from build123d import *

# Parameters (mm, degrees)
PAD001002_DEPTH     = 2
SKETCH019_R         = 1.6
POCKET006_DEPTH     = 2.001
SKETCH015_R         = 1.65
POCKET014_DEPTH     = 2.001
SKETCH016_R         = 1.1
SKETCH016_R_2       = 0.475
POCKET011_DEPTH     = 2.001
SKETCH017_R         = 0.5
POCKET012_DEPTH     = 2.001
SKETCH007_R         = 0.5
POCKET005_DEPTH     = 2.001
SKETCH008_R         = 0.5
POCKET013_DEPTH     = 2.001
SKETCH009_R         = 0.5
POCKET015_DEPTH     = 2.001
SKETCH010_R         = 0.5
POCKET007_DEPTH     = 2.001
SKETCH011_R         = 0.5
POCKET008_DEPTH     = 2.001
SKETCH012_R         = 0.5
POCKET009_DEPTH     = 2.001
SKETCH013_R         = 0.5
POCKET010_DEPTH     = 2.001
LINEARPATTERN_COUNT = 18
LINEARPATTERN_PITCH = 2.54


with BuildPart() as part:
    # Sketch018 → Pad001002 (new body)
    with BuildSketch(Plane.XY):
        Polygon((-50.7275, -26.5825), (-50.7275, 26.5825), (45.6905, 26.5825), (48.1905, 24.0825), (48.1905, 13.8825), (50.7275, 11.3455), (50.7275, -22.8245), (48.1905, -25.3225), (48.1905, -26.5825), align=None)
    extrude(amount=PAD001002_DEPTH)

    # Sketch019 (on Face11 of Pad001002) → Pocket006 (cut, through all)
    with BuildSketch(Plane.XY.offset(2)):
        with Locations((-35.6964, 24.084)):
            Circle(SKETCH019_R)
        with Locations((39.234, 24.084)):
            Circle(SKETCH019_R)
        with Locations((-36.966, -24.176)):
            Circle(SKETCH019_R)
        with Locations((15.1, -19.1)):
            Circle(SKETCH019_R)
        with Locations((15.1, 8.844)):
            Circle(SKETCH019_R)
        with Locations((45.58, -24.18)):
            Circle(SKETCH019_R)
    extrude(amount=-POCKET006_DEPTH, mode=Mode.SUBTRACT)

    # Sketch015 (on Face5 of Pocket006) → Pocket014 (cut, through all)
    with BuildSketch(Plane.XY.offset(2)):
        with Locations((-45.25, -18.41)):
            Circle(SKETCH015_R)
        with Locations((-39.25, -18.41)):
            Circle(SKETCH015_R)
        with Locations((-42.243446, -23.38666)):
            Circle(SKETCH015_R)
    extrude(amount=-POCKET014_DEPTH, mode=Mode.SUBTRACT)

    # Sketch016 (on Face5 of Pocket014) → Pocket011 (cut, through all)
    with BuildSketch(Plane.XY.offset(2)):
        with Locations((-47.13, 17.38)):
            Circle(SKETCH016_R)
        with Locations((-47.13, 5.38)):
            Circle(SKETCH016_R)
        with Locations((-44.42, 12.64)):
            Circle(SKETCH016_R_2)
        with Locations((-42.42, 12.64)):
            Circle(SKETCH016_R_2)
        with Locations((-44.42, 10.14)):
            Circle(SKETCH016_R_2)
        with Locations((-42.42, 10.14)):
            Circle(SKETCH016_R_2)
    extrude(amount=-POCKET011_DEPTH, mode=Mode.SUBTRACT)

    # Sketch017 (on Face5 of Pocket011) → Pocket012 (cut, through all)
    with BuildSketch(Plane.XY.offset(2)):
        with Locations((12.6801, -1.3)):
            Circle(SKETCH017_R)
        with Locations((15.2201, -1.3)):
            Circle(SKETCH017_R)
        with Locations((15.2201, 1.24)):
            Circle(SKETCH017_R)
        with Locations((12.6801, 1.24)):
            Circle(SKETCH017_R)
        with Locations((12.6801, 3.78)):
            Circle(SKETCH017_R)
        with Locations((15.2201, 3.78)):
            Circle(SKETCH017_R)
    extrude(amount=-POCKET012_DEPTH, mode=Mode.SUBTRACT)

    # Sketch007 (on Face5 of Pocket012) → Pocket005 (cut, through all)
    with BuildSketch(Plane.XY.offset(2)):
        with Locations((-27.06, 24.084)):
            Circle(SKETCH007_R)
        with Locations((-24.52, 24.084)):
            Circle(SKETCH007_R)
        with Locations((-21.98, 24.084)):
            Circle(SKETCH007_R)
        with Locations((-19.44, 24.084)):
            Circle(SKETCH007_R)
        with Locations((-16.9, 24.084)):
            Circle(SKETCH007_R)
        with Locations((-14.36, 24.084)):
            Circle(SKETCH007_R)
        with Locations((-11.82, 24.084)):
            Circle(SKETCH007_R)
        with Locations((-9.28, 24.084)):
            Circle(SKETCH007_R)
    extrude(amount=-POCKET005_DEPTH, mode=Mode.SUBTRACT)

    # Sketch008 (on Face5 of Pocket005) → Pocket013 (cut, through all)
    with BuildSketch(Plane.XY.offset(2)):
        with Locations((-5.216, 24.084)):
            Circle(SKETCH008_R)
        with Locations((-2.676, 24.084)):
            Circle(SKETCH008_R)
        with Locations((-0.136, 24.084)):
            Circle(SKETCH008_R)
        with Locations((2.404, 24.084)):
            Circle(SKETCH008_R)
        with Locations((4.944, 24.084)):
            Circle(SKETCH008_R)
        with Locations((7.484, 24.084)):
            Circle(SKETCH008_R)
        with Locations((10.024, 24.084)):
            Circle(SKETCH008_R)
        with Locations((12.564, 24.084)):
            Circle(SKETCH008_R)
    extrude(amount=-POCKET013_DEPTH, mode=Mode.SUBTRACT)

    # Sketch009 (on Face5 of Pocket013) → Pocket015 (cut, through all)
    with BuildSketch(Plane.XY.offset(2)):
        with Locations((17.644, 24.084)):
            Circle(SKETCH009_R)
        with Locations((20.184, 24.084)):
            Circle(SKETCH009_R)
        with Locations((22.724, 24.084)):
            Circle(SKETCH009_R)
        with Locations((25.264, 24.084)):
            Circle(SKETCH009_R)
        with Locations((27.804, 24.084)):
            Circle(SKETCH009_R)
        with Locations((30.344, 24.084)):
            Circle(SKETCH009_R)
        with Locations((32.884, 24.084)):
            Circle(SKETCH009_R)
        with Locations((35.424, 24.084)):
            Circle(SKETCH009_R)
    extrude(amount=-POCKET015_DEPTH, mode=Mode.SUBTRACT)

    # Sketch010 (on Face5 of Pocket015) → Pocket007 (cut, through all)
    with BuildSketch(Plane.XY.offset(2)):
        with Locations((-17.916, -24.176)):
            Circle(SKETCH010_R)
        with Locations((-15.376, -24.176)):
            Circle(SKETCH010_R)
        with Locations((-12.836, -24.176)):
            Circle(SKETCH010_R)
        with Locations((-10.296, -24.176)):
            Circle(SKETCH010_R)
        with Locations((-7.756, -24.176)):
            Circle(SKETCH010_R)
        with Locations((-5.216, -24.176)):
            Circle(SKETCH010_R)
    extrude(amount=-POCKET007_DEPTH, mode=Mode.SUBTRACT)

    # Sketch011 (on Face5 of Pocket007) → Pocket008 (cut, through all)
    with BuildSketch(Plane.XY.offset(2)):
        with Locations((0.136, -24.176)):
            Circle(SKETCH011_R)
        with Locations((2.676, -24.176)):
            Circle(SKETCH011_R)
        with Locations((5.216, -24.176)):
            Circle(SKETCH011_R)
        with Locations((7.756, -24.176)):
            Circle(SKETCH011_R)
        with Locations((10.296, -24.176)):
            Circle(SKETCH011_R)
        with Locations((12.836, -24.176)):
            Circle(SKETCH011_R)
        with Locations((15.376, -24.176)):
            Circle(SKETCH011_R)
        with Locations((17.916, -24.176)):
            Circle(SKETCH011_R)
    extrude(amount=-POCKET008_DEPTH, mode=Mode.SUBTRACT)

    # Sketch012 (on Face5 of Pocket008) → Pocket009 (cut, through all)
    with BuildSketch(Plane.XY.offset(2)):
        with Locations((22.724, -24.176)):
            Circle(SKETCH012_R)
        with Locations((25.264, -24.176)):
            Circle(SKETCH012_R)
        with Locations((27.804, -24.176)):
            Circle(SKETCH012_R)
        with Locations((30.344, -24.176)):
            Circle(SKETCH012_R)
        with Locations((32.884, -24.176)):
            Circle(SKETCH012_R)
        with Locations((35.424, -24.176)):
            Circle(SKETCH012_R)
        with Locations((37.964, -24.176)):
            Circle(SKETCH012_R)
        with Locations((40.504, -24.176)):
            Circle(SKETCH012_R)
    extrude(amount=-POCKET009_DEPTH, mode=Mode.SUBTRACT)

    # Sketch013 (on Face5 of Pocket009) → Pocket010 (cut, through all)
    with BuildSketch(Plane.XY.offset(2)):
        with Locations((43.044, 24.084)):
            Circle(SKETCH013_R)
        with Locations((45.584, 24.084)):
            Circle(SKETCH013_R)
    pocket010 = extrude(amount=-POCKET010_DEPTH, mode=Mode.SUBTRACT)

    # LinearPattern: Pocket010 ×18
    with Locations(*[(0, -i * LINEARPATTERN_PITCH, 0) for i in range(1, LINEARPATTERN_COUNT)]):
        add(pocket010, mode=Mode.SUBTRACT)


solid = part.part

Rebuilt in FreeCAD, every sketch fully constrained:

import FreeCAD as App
import Part
import Sketcher

V = App.Vector
Q = App.Units.Quantity

doc = App.newDocument("Part")
params = doc.addObject("Spreadsheet::Sheet", "Params")
for row, (alias, value) in enumerate([
    ("sketch1_height", "10.2 mm"),
    ("sketch1_height2", "1.26 mm"),
    ("sketch1_height3", "34.17 mm"),
    ("pad1_length", "2 mm"),
    ("sketch2_diameter", "3.2 mm"),
    ("sketch3_diameter", "3.3 mm"),
    ("sketch4_diameter", "2.2 mm"),
    ("sketch4_diameter2", "0.95 mm"),
    ("sketch5_diameter", "1 mm"),
    ("sketch6_diameter", "1 mm"),
    ("sketch7_diameter", "1 mm"),
    ("sketch8_diameter", "1 mm"),
    ("sketch9_diameter", "1 mm"),
    ("sketch10_diameter", "1 mm"),
    ("sketch11_diameter", "1 mm"),
    ("sketch12_diameter", "1 mm"),
    ("linearpattern_pitch", "2.54 mm"),
], start=1):
    params.set(f"A{row}", alias)
    params.set(f"B{row}", "=" + value)
    params.setAlias(f"B{row}", alias)

body = doc.addObject("PartDesign::Body", "Body")

# Sketch on XY plane
sketch1 = body.newObject("Sketcher::SketchObject", "Sketch")
sketch1.AttachmentSupport = (doc.getObject("XY_Plane"), [""])
sketch1.MapMode = "FlatFace"
sketch1.addGeometry([
    Part.LineSegment(V(-50.7, 26.6, 0), V(-50.7, -26.6, 0)),  # 0
    Part.LineSegment(V(-50.7, -26.6, 0), V(48.2, -26.6, 0)),  # 1
    Part.LineSegment(V(48.2, -26.6, 0), V(48.2, -25.3, 0)),  # 2
    Part.LineSegment(V(48.2, -25.3, 0), V(50.7, -22.8, 0)),  # 3
    Part.LineSegment(V(50.7, -22.8, 0), V(50.7, 11.3, 0)),  # 4
    Part.LineSegment(V(50.7, 11.3, 0), V(48.2, 13.9, 0)),  # 5
    Part.LineSegment(V(48.2, 13.9, 0), V(48.2, 24.1, 0)),  # 6
    Part.LineSegment(V(48.2, 24.1, 0), V(45.7, 26.6, 0)),  # 7
    Part.LineSegment(V(45.7, 26.6, 0), V(-50.7, 26.6, 0)),  # 8
], False)
sketch1.addConstraint([
    Sketcher.Constraint("Coincident", 0, 2, 1, 1),
    Sketcher.Constraint("Coincident", 1, 2, 2, 1),
    Sketcher.Constraint("Coincident", 2, 2, 3, 1),
    Sketcher.Constraint("Coincident", 3, 2, 4, 1),
    Sketcher.Constraint("Coincident", 4, 2, 5, 1),
    Sketcher.Constraint("Coincident", 5, 2, 6, 1),
    Sketcher.Constraint("Coincident", 6, 2, 7, 1),
    Sketcher.Constraint("Coincident", 7, 2, 8, 1),
    Sketcher.Constraint("Coincident", 8, 2, 0, 1),
    Sketcher.Constraint("Vertical", 0),
    Sketcher.Constraint("Horizontal", 1),
    Sketcher.Constraint("Vertical", 2),
    Sketcher.Constraint("Vertical", 4),
    Sketcher.Constraint("Vertical", 6),
    Sketcher.Constraint("Horizontal", 8),
    Sketcher.Constraint("Parallel", 5, 7),
    Sketcher.Constraint("Vertical", 2, 2, 5, 2),
    Sketcher.Constraint("Angle", 5, Q("135 deg")),
    Sketcher.Constraint("DistanceY", 6, 1, 6, 2, Q("10.2 mm")),
    Sketcher.Constraint("DistanceY", 2, 1, 2, 2, Q("1.26 mm")),
    Sketcher.Constraint("DistanceY", 4, 1, 4, 2, Q("34.17 mm")),
    Sketcher.Constraint("DistanceX", 7, 2, 6, 2, Q("2.5 mm")),
    Sketcher.Constraint("DistanceX", 1, 1, 1, 2, Q("98.918 mm")),
    Sketcher.Constraint("DistanceY", 0, 2, 0, 1, Q("53.165 mm")),
    Sketcher.Constraint("DistanceX", 2, 2, 3, 2, Q("2.537 mm")),
    Sketcher.Constraint("DistanceX", 0, 2, -1, 1, Q("50.7275 mm")),
    Sketcher.Constraint("DistanceY", 0, 2, -1, 1, Q("26.5825 mm")),
])
sketch1.setExpression("Constraints[18]", "Params.sketch1_height")
sketch1.setExpression("Constraints[19]", "Params.sketch1_height2")
sketch1.setExpression("Constraints[20]", "Params.sketch1_height3")
pad1 = body.newObject("PartDesign::Pad", "Pad")
pad1.Profile = sketch1
pad1.setExpression("Length", "Params.pad1_length")

# Sketch on XY plane
sketch2 = body.newObject("Sketcher::SketchObject", "Sketch001")
sketch2.AttachmentSupport = (doc.getObject("XY_Plane"), [""])
sketch2.MapMode = "FlatFace"
sketch2.AttachmentOffset = App.Placement(V(0, 0, 2), App.Rotation())
sketch2.addGeometry([
    Part.Circle(V(-35.7, 24.1, 0), V(0, 0, 1), 1.6),  # 0
    Part.Circle(V(39.2, 24.1, 0), V(0, 0, 1), 1.6),  # 1
    Part.Circle(V(-37, -24.2, 0), V(0, 0, 1), 1.6),  # 2
    Part.Circle(V(15.1, -19.1, 0), V(0, 0, 1), 1.6),  # 3
    Part.Circle(V(15.1, 8.8, 0), V(0, 0, 1), 1.6),  # 4
    Part.Circle(V(45.6, -24.2, 0), V(0, 0, 1), 1.6),  # 5
], False)
sketch2.addConstraint([
    Sketcher.Constraint("Equal", 0, 1),
    Sketcher.Constraint("Equal", 1, 2),
    Sketcher.Constraint("Equal", 2, 3),
    Sketcher.Constraint("Equal", 3, 4),
    Sketcher.Constraint("Equal", 4, 5),
    Sketcher.Constraint("Horizontal", 0, 3, 1, 3),
    Sketcher.Constraint("Vertical", 3, 3, 4, 3),
    Sketcher.Constraint("Diameter", 0, Q("3.2 mm")),
    Sketcher.Constraint("DistanceX", -1, 1, 3, 3, Q("15.1 mm")),
    Sketcher.Constraint("DistanceY", 3, 3, -1, 1, Q("19.1 mm")),
    Sketcher.Constraint("DistanceX", 2, 3, 1, 3, Q("76.2 mm")),
    Sketcher.Constraint("DistanceX", -1, 1, 5, 3, Q("45.58 mm")),
    Sketcher.Constraint("DistanceY", 5, 3, -1, 1, Q("24.18 mm")),
    Sketcher.Constraint("DistanceY", 2, 3, 0, 3, Q("48.26 mm")),
    Sketcher.Constraint("DistanceY", 4, 3, 1, 3, Q("15.24 mm")),
    Sketcher.Constraint("DistanceY", -1, 1, 0, 3, Q("24.084 mm")),
    Sketcher.Constraint("DistanceX", -1, 1, 1, 3, Q("39.234 mm")),
    Sketcher.Constraint("DistanceX", 0, 3, -1, 1, Q("35.6964 mm")),
])
sketch2.setExpression("Constraints[7]", "Params.sketch2_diameter")
pocket1 = body.newObject("PartDesign::Pocket", "Pocket")
pocket1.Profile = sketch2
pocket1.Type = "ThroughAll"

# Sketch on XY plane
sketch3 = body.newObject("Sketcher::SketchObject", "Sketch002")
sketch3.AttachmentSupport = (doc.getObject("XY_Plane"), [""])
sketch3.MapMode = "FlatFace"
sketch3.AttachmentOffset = App.Placement(V(0, 0, 2), App.Rotation())
sketch3.addGeometry([
    Part.Circle(V(-45.2, -18.4, 0), V(0, 0, 1), 1.6),
    Part.Circle(V(-39.2, -18.4, 0), V(0, 0, 1), 1.6),
    Part.Circle(V(-42.2, -23.4, 0), V(0, 0, 1), 1.6),
], False)
sketch3.addConstraint([
    Sketcher.Constraint("Equal", 0, 1),
    Sketcher.Constraint("Equal", 1, 2),
    Sketcher.Constraint("Horizontal", 0, 3, 1, 3),
    Sketcher.Constraint("Diameter", 0, Q("3.3 mm")),
    Sketcher.Constraint("DistanceX", 0, 3, 1, 3, Q("6 mm")),
    Sketcher.Constraint("DistanceX", 0, 3, -1, 1, Q("45.25 mm")),
    Sketcher.Constraint("DistanceY", 0, 3, -1, 1, Q("18.41 mm")),
    Sketcher.Constraint("DistanceY", 2, 3, -1, 1, Q("23.38666 mm")),
    Sketcher.Constraint("DistanceX", 2, 3, -1, 1, Q("42.243446 mm")),
])
sketch3.setExpression("Constraints[3]", "Params.sketch3_diameter")
pocket2 = body.newObject("PartDesign::Pocket", "Pocket001")
pocket2.Profile = sketch3
pocket2.Type = "ThroughAll"

# Sketch on XY plane
sketch4 = body.newObject("Sketcher::SketchObject", "Sketch003")
sketch4.AttachmentSupport = (doc.getObject("XY_Plane"), [""])
sketch4.MapMode = "FlatFace"
sketch4.AttachmentOffset = App.Placement(V(0, 0, 2), App.Rotation())
sketch4.addGeometry([
    Part.Circle(V(-47.13, 17.38, 0), V(0, 0, 1), 1.1),  # 0
    Part.Circle(V(-47.13, 5.38, 0), V(0, 0, 1), 1.1),  # 1
    Part.Circle(V(-44.42, 12.64, 0), V(0, 0, 1), 0.47),  # 2
    Part.Circle(V(-42.42, 12.64, 0), V(0, 0, 1), 0.47),  # 3
    Part.Circle(V(-44.42, 10.14, 0), V(0, 0, 1), 0.47),  # 4
    Part.Circle(V(-42.42, 10.14, 0), V(0, 0, 1), 0.47),  # 5
], False)
sketch4.addConstraint([
    Sketcher.Constraint("Equal", 0, 1),
    Sketcher.Constraint("Equal", 2, 3),
    Sketcher.Constraint("Equal", 3, 4),
    Sketcher.Constraint("Equal", 4, 5),
    Sketcher.Constraint("Horizontal", 2, 3, 3, 3),
    Sketcher.Constraint("Horizontal", 4, 3, 5, 3),
    Sketcher.Constraint("Vertical", 0, 3, 1, 3),
    Sketcher.Constraint("Vertical", 2, 3, 4, 3),
    Sketcher.Constraint("Vertical", 3, 3, 5, 3),
    Sketcher.Constraint("Diameter", 0, Q("2.2 mm")),
    Sketcher.Constraint("Diameter", 2, Q("0.95 mm")),
    Sketcher.Constraint("DistanceY", 1, 3, 0, 3, Q("12 mm")),
    Sketcher.Constraint("DistanceX", 2, 3, 3, 3, Q("2 mm")),
    Sketcher.Constraint("DistanceY", 4, 3, 2, 3, Q("2.5 mm")),
    Sketcher.Constraint("DistanceX", 0, 3, -1, 1, Q("47.13 mm")),
    Sketcher.Constraint("DistanceY", -1, 1, 0, 3, Q("17.38 mm")),
    Sketcher.Constraint("DistanceX", 2, 3, -1, 1, Q("44.42 mm")),
    Sketcher.Constraint("DistanceY", -1, 1, 2, 3, Q("12.64 mm")),
])
sketch4.setExpression("Constraints[9]", "Params.sketch4_diameter")
sketch4.setExpression("Constraints[10]", "Params.sketch4_diameter2")
pocket3 = body.newObject("PartDesign::Pocket", "Pocket002")
pocket3.Profile = sketch4
pocket3.Type = "ThroughAll"

# Sketch on XY plane
sketch5 = body.newObject("Sketcher::SketchObject", "Sketch004")
sketch5.AttachmentSupport = (doc.getObject("XY_Plane"), [""])
sketch5.MapMode = "FlatFace"
sketch5.AttachmentOffset = App.Placement(V(0, 0, 2), App.Rotation())
sketch5.addGeometry([
    Part.Circle(V(12.7, -1.3, 0), V(0, 0, 1), 0.5),  # 0
    Part.Circle(V(15.2, -1.3, 0), V(0, 0, 1), 0.5),  # 1
    Part.Circle(V(15.2, 1.2, 0), V(0, 0, 1), 0.5),  # 2
    Part.Circle(V(12.7, 1.2, 0), V(0, 0, 1), 0.5),  # 3
    Part.Circle(V(12.7, 3.8, 0), V(0, 0, 1), 0.5),  # 4
    Part.Circle(V(15.2, 3.8, 0), V(0, 0, 1), 0.5),  # 5
], False)
sketch5.addConstraint([
    Sketcher.Constraint("Equal", 0, 1),
    Sketcher.Constraint("Equal", 1, 2),
    Sketcher.Constraint("Equal", 2, 3),
    Sketcher.Constraint("Equal", 3, 4),
    Sketcher.Constraint("Equal", 4, 5),
    Sketcher.Constraint("Horizontal", 0, 3, 1, 3),
    Sketcher.Constraint("Horizontal", 2, 3, 3, 3),
    Sketcher.Constraint("Horizontal", 4, 3, 5, 3),
    Sketcher.Constraint("Vertical", 1, 3, 2, 3),
    Sketcher.Constraint("Vertical", 0, 3, 3, 3),
    Sketcher.Constraint("Vertical", 3, 3, 4, 3),
    Sketcher.Constraint("Vertical", 2, 3, 5, 3),
    Sketcher.Constraint("Diameter", 0, Q("1 mm")),
    Sketcher.Constraint("DistanceY", 0, 3, -1, 1, Q("1.3 mm")),
    Sketcher.Constraint("DistanceY", -1, 1, 2, 3, Q("1.24 mm")),
    Sketcher.Constraint("DistanceY", -1, 1, 4, 3, Q("3.78 mm")),
    Sketcher.Constraint("DistanceX", 0, 3, 1, 3, Q("2.54 mm")),
    Sketcher.Constraint("DistanceX", -1, 1, 0, 3, Q("12.6801 mm")),
])
sketch5.setExpression("Constraints[12]", "Params.sketch5_diameter")
pocket4 = body.newObject("PartDesign::Pocket", "Pocket003")
pocket4.Profile = sketch5
pocket4.Type = "ThroughAll"

# Sketch on XY plane
sketch6 = body.newObject("Sketcher::SketchObject", "Sketch005")
sketch6.AttachmentSupport = (doc.getObject("XY_Plane"), [""])
sketch6.MapMode = "FlatFace"
sketch6.AttachmentOffset = App.Placement(V(0, 0, 2), App.Rotation())
sketch6.addGeometry([
    Part.Circle(V(-27.1, 24.1, 0), V(0, 0, 1), 0.5),  # 0
    Part.Circle(V(-24.5, 24.1, 0), V(0, 0, 1), 0.5),  # 1
    Part.Circle(V(-22, 24.1, 0), V(0, 0, 1), 0.5),  # 2
    Part.Circle(V(-19.4, 24.1, 0), V(0, 0, 1), 0.5),  # 3
    Part.Circle(V(-16.9, 24.1, 0), V(0, 0, 1), 0.5),  # 4
    Part.Circle(V(-14.4, 24.1, 0), V(0, 0, 1), 0.5),  # 5
    Part.Circle(V(-11.8, 24.1, 0), V(0, 0, 1), 0.5),  # 6
    Part.Circle(V(-9.3, 24.1, 0), V(0, 0, 1), 0.5),  # 7
], False)
sketch6.addConstraint([
    Sketcher.Constraint("Equal", 0, 1),
    Sketcher.Constraint("Equal", 1, 2),
    Sketcher.Constraint("Equal", 2, 3),
    Sketcher.Constraint("Equal", 3, 4),
    Sketcher.Constraint("Equal", 4, 5),
    Sketcher.Constraint("Equal", 5, 6),
    Sketcher.Constraint("Equal", 6, 7),
    Sketcher.Constraint("Horizontal", 0, 3, 1, 3),
    Sketcher.Constraint("Horizontal", 1, 3, 2, 3),
    Sketcher.Constraint("Horizontal", 2, 3, 3, 3),
    Sketcher.Constraint("Horizontal", 3, 3, 4, 3),
    Sketcher.Constraint("Horizontal", 4, 3, 5, 3),
    Sketcher.Constraint("Horizontal", 5, 3, 6, 3),
    Sketcher.Constraint("Horizontal", 6, 3, 7, 3),
    Sketcher.Constraint("Diameter", 0, Q("1 mm")),
    Sketcher.Constraint("DistanceX", 4, 3, -1, 1, Q("16.9 mm")),
    Sketcher.Constraint("DistanceX", 0, 3, 5, 3, Q("12.7 mm")),
    Sketcher.Constraint("DistanceX", 1, 3, 6, 3, Q("12.7 mm")),
    Sketcher.Constraint("DistanceX", 2, 3, 7, 3, Q("12.7 mm")),
    Sketcher.Constraint("DistanceX", 0, 3, -1, 1, Q("27.06 mm")),
    Sketcher.Constraint("DistanceX", 1, 3, -1, 1, Q("24.52 mm")),
    Sketcher.Constraint("DistanceX", 2, 3, -1, 1, Q("21.98 mm")),
    Sketcher.Constraint("DistanceX", 3, 3, -1, 1, Q("19.44 mm")),
    Sketcher.Constraint("DistanceY", -1, 1, 0, 3, Q("24.084 mm")),
])
sketch6.setExpression("Constraints[14]", "Params.sketch6_diameter")
pocket5 = body.newObject("PartDesign::Pocket", "Pocket004")
pocket5.Profile = sketch6
pocket5.Type = "ThroughAll"

# Sketch on XY plane
sketch7 = body.newObject("Sketcher::SketchObject", "Sketch006")
sketch7.AttachmentSupport = (doc.getObject("XY_Plane"), [""])
sketch7.MapMode = "FlatFace"
sketch7.AttachmentOffset = App.Placement(V(0, 0, 2), App.Rotation())
sketch7.addGeometry([
    Part.Circle(V(-5.2, 24.1, 0), V(0, 0, 1), 0.5),  # 0
    Part.Circle(V(-2.7, 24.1, 0), V(0, 0, 1), 0.5),  # 1
    Part.Circle(V(-0.1, 24.1, 0), V(0, 0, 1), 0.5),  # 2
    Part.Circle(V(2.4, 24.1, 0), V(0, 0, 1), 0.5),  # 3
    Part.Circle(V(4.9, 24.1, 0), V(0, 0, 1), 0.5),  # 4
    Part.Circle(V(7.5, 24.1, 0), V(0, 0, 1), 0.5),  # 5
    Part.Circle(V(10, 24.1, 0), V(0, 0, 1), 0.5),  # 6
    Part.Circle(V(12.6, 24.1, 0), V(0, 0, 1), 0.5),  # 7
], False)
sketch7.addConstraint([
    Sketcher.Constraint("Equal", 0, 1),
    Sketcher.Constraint("Equal", 1, 2),
    Sketcher.Constraint("Equal", 2, 3),
    Sketcher.Constraint("Equal", 3, 4),
    Sketcher.Constraint("Equal", 4, 5),
    Sketcher.Constraint("Equal", 5, 6),
    Sketcher.Constraint("Equal", 6, 7),
    Sketcher.Constraint("Horizontal", 0, 3, 1, 3),
    Sketcher.Constraint("Horizontal", 1, 3, 2, 3),
    Sketcher.Constraint("Horizontal", 2, 3, 3, 3),
    Sketcher.Constraint("Horizontal", 3, 3, 4, 3),
    Sketcher.Constraint("Horizontal", 4, 3, 5, 3),
    Sketcher.Constraint("Horizontal", 5, 3, 6, 3),
    Sketcher.Constraint("Horizontal", 6, 3, 7, 3),
    Sketcher.Constraint("Diameter", 0, Q("1 mm")),
    Sketcher.Constraint("DistanceX", 0, 3, 5, 3, Q("12.7 mm")),
    Sketcher.Constraint("DistanceX", 1, 3, 6, 3, Q("12.7 mm")),
    Sketcher.Constraint("DistanceX", 2, 3, 7, 3, Q("12.7 mm")),
    Sketcher.Constraint("DistanceX", 0, 3, 1, 3, Q("2.54 mm")),
    Sketcher.Constraint("DistanceX", 1, 3, 2, 3, Q("2.54 mm")),
    Sketcher.Constraint("DistanceX", 2, 3, 3, 3, Q("2.54 mm")),
    Sketcher.Constraint("DistanceX", 3, 3, 4, 3, Q("2.54 mm")),
    Sketcher.Constraint("DistanceX", 0, 3, -1, 1, Q("5.216 mm")),
    Sketcher.Constraint("DistanceY", -1, 1, 0, 3, Q("24.084 mm")),
])
sketch7.setExpression("Constraints[14]", "Params.sketch7_diameter")
pocket6 = body.newObject("PartDesign::Pocket", "Pocket005")
pocket6.Profile = sketch7
pocket6.Type = "ThroughAll"

# Sketch on XY plane
sketch8 = body.newObject("Sketcher::SketchObject", "Sketch007")
sketch8.AttachmentSupport = (doc.getObject("XY_Plane"), [""])
sketch8.MapMode = "FlatFace"
sketch8.AttachmentOffset = App.Placement(V(0, 0, 2), App.Rotation())
sketch8.addGeometry([
    Part.Circle(V(17.6, 24.1, 0), V(0, 0, 1), 0.5),  # 0
    Part.Circle(V(20.2, 24.1, 0), V(0, 0, 1), 0.5),  # 1
    Part.Circle(V(22.7, 24.1, 0), V(0, 0, 1), 0.5),  # 2
    Part.Circle(V(25.3, 24.1, 0), V(0, 0, 1), 0.5),  # 3
    Part.Circle(V(27.8, 24.1, 0), V(0, 0, 1), 0.5),  # 4
    Part.Circle(V(30.3, 24.1, 0), V(0, 0, 1), 0.5),  # 5
    Part.Circle(V(32.9, 24.1, 0), V(0, 0, 1), 0.5),  # 6
    Part.Circle(V(35.4, 24.1, 0), V(0, 0, 1), 0.5),  # 7
], False)
sketch8.addConstraint([
    Sketcher.Constraint("Equal", 0, 1),
    Sketcher.Constraint("Equal", 1, 2),
    Sketcher.Constraint("Equal", 2, 3),
    Sketcher.Constraint("Equal", 3, 4),
    Sketcher.Constraint("Equal", 4, 5),
    Sketcher.Constraint("Equal", 5, 6),
    Sketcher.Constraint("Equal", 6, 7),
    Sketcher.Constraint("Horizontal", 0, 3, 1, 3),
    Sketcher.Constraint("Horizontal", 1, 3, 2, 3),
    Sketcher.Constraint("Horizontal", 2, 3, 3, 3),
    Sketcher.Constraint("Horizontal", 3, 3, 4, 3),
    Sketcher.Constraint("Horizontal", 4, 3, 5, 3),
    Sketcher.Constraint("Horizontal", 5, 3, 6, 3),
    Sketcher.Constraint("Horizontal", 6, 3, 7, 3),
    Sketcher.Constraint("Diameter", 0, Q("1 mm")),
    Sketcher.Constraint("DistanceX", 0, 3, 5, 3, Q("12.7 mm")),
    Sketcher.Constraint("DistanceX", 1, 3, 6, 3, Q("12.7 mm")),
    Sketcher.Constraint("DistanceX", 2, 3, 7, 3, Q("12.7 mm")),
    Sketcher.Constraint("DistanceX", 0, 3, 1, 3, Q("2.54 mm")),
    Sketcher.Constraint("DistanceX", 1, 3, 2, 3, Q("2.54 mm")),
    Sketcher.Constraint("DistanceX", 2, 3, 3, 3, Q("2.54 mm")),
    Sketcher.Constraint("DistanceX", 3, 3, 4, 3, Q("2.54 mm")),
    Sketcher.Constraint("DistanceX", -1, 1, 0, 3, Q("17.644 mm")),
    Sketcher.Constraint("DistanceY", -1, 1, 0, 3, Q("24.084 mm")),
])
sketch8.setExpression("Constraints[14]", "Params.sketch8_diameter")
pocket7 = body.newObject("PartDesign::Pocket", "Pocket006")
pocket7.Profile = sketch8
pocket7.Type = "ThroughAll"

# Sketch on XY plane
sketch9 = body.newObject("Sketcher::SketchObject", "Sketch008")
sketch9.AttachmentSupport = (doc.getObject("XY_Plane"), [""])
sketch9.MapMode = "FlatFace"
sketch9.AttachmentOffset = App.Placement(V(0, 0, 2), App.Rotation())
sketch9.addGeometry([
    Part.Circle(V(-17.9, -24.2, 0), V(0, 0, 1), 0.5),  # 0
    Part.Circle(V(-15.4, -24.2, 0), V(0, 0, 1), 0.5),  # 1
    Part.Circle(V(-12.8, -24.2, 0), V(0, 0, 1), 0.5),  # 2
    Part.Circle(V(-10.3, -24.2, 0), V(0, 0, 1), 0.5),  # 3
    Part.Circle(V(-7.8, -24.2, 0), V(0, 0, 1), 0.5),  # 4
    Part.Circle(V(-5.2, -24.2, 0), V(0, 0, 1), 0.5),  # 5
], False)
sketch9.addConstraint([
    Sketcher.Constraint("Equal", 0, 1),
    Sketcher.Constraint("Equal", 1, 2),
    Sketcher.Constraint("Equal", 2, 3),
    Sketcher.Constraint("Equal", 3, 4),
    Sketcher.Constraint("Equal", 4, 5),
    Sketcher.Constraint("Horizontal", 0, 3, 1, 3),
    Sketcher.Constraint("Horizontal", 1, 3, 2, 3),
    Sketcher.Constraint("Horizontal", 2, 3, 3, 3),
    Sketcher.Constraint("Horizontal", 3, 3, 4, 3),
    Sketcher.Constraint("Horizontal", 4, 3, 5, 3),
    Sketcher.Constraint("Diameter", 0, Q("1 mm")),
    Sketcher.Constraint("DistanceX", 0, 3, 5, 3, Q("12.7 mm")),
    Sketcher.Constraint("DistanceX", 0, 3, 1, 3, Q("2.54 mm")),
    Sketcher.Constraint("DistanceX", 1, 3, 2, 3, Q("2.54 mm")),
    Sketcher.Constraint("DistanceX", 2, 3, 3, 3, Q("2.54 mm")),
    Sketcher.Constraint("DistanceX", 3, 3, 4, 3, Q("2.54 mm")),
    Sketcher.Constraint("DistanceX", 0, 3, -1, 1, Q("17.916 mm")),
    Sketcher.Constraint("DistanceY", 0, 3, -1, 1, Q("24.176 mm")),
])
sketch9.setExpression("Constraints[10]", "Params.sketch9_diameter")
pocket8 = body.newObject("PartDesign::Pocket", "Pocket007")
pocket8.Profile = sketch9
pocket8.Type = "ThroughAll"

# Sketch on XY plane
sketch10 = body.newObject("Sketcher::SketchObject", "Sketch009")
sketch10.AttachmentSupport = (doc.getObject("XY_Plane"), [""])
sketch10.MapMode = "FlatFace"
sketch10.AttachmentOffset = App.Placement(V(0, 0, 2), App.Rotation())
sketch10.addGeometry([
    Part.Circle(V(0.1, -24.2, 0), V(0, 0, 1), 0.5),  # 0
    Part.Circle(V(2.7, -24.2, 0), V(0, 0, 1), 0.5),  # 1
    Part.Circle(V(5.2, -24.2, 0), V(0, 0, 1), 0.5),  # 2
    Part.Circle(V(7.8, -24.2, 0), V(0, 0, 1), 0.5),  # 3
    Part.Circle(V(10.3, -24.2, 0), V(0, 0, 1), 0.5),  # 4
    Part.Circle(V(12.8, -24.2, 0), V(0, 0, 1), 0.5),  # 5
    Part.Circle(V(15.4, -24.2, 0), V(0, 0, 1), 0.5),  # 6
    Part.Circle(V(17.9, -24.2, 0), V(0, 0, 1), 0.5),  # 7
], False)
sketch10.addConstraint([
    Sketcher.Constraint("Equal", 0, 1),
    Sketcher.Constraint("Equal", 1, 2),
    Sketcher.Constraint("Equal", 2, 3),
    Sketcher.Constraint("Equal", 3, 4),
    Sketcher.Constraint("Equal", 4, 5),
    Sketcher.Constraint("Equal", 5, 6),
    Sketcher.Constraint("Equal", 6, 7),
    Sketcher.Constraint("Horizontal", 0, 3, 1, 3),
    Sketcher.Constraint("Horizontal", 1, 3, 2, 3),
    Sketcher.Constraint("Horizontal", 2, 3, 3, 3),
    Sketcher.Constraint("Horizontal", 3, 3, 4, 3),
    Sketcher.Constraint("Horizontal", 4, 3, 5, 3),
    Sketcher.Constraint("Horizontal", 5, 3, 6, 3),
    Sketcher.Constraint("Horizontal", 6, 3, 7, 3),
    Sketcher.Constraint("Diameter", 0, Q("1 mm")),
    Sketcher.Constraint("DistanceX", 0, 3, 5, 3, Q("12.7 mm")),
    Sketcher.Constraint("DistanceX", 1, 3, 6, 3, Q("12.7 mm")),
    Sketcher.Constraint("DistanceX", 2, 3, 7, 3, Q("12.7 mm")),
    Sketcher.Constraint("DistanceX", 0, 3, 1, 3, Q("2.54 mm")),
    Sketcher.Constraint("DistanceX", 1, 3, 2, 3, Q("2.54 mm")),
    Sketcher.Constraint("DistanceX", 2, 3, 3, 3, Q("2.54 mm")),
    Sketcher.Constraint("DistanceX", 3, 3, 4, 3, Q("2.54 mm")),
    Sketcher.Constraint("DistanceX", -1, 1, 0, 3, Q("0.136 mm")),
    Sketcher.Constraint("DistanceY", 0, 3, -1, 1, Q("24.176 mm")),
])
sketch10.setExpression("Constraints[14]", "Params.sketch10_diameter")
pocket9 = body.newObject("PartDesign::Pocket", "Pocket008")
pocket9.Profile = sketch10
pocket9.Type = "ThroughAll"

# Sketch on XY plane
sketch11 = body.newObject("Sketcher::SketchObject", "Sketch010")
sketch11.AttachmentSupport = (doc.getObject("XY_Plane"), [""])
sketch11.MapMode = "FlatFace"
sketch11.AttachmentOffset = App.Placement(V(0, 0, 2), App.Rotation())
sketch11.addGeometry([
    Part.Circle(V(22.7, -24.2, 0), V(0, 0, 1), 0.5),  # 0
    Part.Circle(V(25.3, -24.2, 0), V(0, 0, 1), 0.5),  # 1
    Part.Circle(V(27.8, -24.2, 0), V(0, 0, 1), 0.5),  # 2
    Part.Circle(V(30.3, -24.2, 0), V(0, 0, 1), 0.5),  # 3
    Part.Circle(V(32.9, -24.2, 0), V(0, 0, 1), 0.5),  # 4
    Part.Circle(V(35.4, -24.2, 0), V(0, 0, 1), 0.5),  # 5
    Part.Circle(V(38, -24.2, 0), V(0, 0, 1), 0.5),  # 6
    Part.Circle(V(40.5, -24.2, 0), V(0, 0, 1), 0.5),  # 7
], False)
sketch11.addConstraint([
    Sketcher.Constraint("Equal", 0, 1),
    Sketcher.Constraint("Equal", 1, 2),
    Sketcher.Constraint("Equal", 2, 3),
    Sketcher.Constraint("Equal", 3, 4),
    Sketcher.Constraint("Equal", 4, 5),
    Sketcher.Constraint("Equal", 5, 6),
    Sketcher.Constraint("Equal", 6, 7),
    Sketcher.Constraint("Horizontal", 0, 3, 1, 3),
    Sketcher.Constraint("Horizontal", 1, 3, 2, 3),
    Sketcher.Constraint("Horizontal", 2, 3, 3, 3),
    Sketcher.Constraint("Horizontal", 3, 3, 4, 3),
    Sketcher.Constraint("Horizontal", 4, 3, 5, 3),
    Sketcher.Constraint("Horizontal", 5, 3, 6, 3),
    Sketcher.Constraint("Horizontal", 6, 3, 7, 3),
    Sketcher.Constraint("Diameter", 0, Q("1 mm")),
    Sketcher.Constraint("DistanceX", 0, 3, 5, 3, Q("12.7 mm")),
    Sketcher.Constraint("DistanceX", 1, 3, 6, 3, Q("12.7 mm")),
    Sketcher.Constraint("DistanceX", 2, 3, 7, 3, Q("12.7 mm")),
    Sketcher.Constraint("DistanceX", 0, 3, 1, 3, Q("2.54 mm")),
    Sketcher.Constraint("DistanceX", 1, 3, 2, 3, Q("2.54 mm")),
    Sketcher.Constraint("DistanceX", 2, 3, 3, 3, Q("2.54 mm")),
    Sketcher.Constraint("DistanceX", 3, 3, 4, 3, Q("2.54 mm")),
    Sketcher.Constraint("DistanceX", -1, 1, 0, 3, Q("22.724 mm")),
    Sketcher.Constraint("DistanceY", 0, 3, -1, 1, Q("24.176 mm")),
])
sketch11.setExpression("Constraints[14]", "Params.sketch11_diameter")
pocket10 = body.newObject("PartDesign::Pocket", "Pocket009")
pocket10.Profile = sketch11
pocket10.Type = "ThroughAll"

# Sketch on XY plane
sketch12 = body.newObject("Sketcher::SketchObject", "Sketch011")
sketch12.AttachmentSupport = (doc.getObject("XY_Plane"), [""])
sketch12.MapMode = "FlatFace"
sketch12.AttachmentOffset = App.Placement(V(0, 0, 2), App.Rotation())
sketch12.addGeometry([
    Part.Circle(V(43, 24.1, 0), V(0, 0, 1), 0.5),
    Part.Circle(V(45.6, 24.1, 0), V(0, 0, 1), 0.5),
], False)
sketch12.addConstraint([
    Sketcher.Constraint("Equal", 0, 1),
    Sketcher.Constraint("Horizontal", 0, 3, 1, 3),
    Sketcher.Constraint("Diameter", 0, Q("1 mm")),
    Sketcher.Constraint("DistanceX", 0, 3, 1, 3, Q("2.54 mm")),
    Sketcher.Constraint("DistanceX", -1, 1, 0, 3, Q("43.044 mm")),
    Sketcher.Constraint("DistanceY", -1, 1, 0, 3, Q("24.084 mm")),
])
sketch12.setExpression("Constraints[2]", "Params.sketch12_diameter")
pocket11 = body.newObject("PartDesign::Pocket", "Pocket010")
pocket11.Profile = sketch12
pocket11.Type = "ThroughAll"
doc.recompute()

linearpattern = body.newObject("PartDesign::LinearPattern", "LinearPattern")
linearpattern.Originals = [pocket11]
linearpattern.Direction = (doc.getObject("Y_Axis"), [""])
linearpattern.Mode = "offset"
linearpattern.setExpression("Offset", "Params.linearpattern_pitch")
linearpattern.Occurrences = 18
linearpattern.Reversed = True
body.Tip = linearpattern

doc.recompute()
